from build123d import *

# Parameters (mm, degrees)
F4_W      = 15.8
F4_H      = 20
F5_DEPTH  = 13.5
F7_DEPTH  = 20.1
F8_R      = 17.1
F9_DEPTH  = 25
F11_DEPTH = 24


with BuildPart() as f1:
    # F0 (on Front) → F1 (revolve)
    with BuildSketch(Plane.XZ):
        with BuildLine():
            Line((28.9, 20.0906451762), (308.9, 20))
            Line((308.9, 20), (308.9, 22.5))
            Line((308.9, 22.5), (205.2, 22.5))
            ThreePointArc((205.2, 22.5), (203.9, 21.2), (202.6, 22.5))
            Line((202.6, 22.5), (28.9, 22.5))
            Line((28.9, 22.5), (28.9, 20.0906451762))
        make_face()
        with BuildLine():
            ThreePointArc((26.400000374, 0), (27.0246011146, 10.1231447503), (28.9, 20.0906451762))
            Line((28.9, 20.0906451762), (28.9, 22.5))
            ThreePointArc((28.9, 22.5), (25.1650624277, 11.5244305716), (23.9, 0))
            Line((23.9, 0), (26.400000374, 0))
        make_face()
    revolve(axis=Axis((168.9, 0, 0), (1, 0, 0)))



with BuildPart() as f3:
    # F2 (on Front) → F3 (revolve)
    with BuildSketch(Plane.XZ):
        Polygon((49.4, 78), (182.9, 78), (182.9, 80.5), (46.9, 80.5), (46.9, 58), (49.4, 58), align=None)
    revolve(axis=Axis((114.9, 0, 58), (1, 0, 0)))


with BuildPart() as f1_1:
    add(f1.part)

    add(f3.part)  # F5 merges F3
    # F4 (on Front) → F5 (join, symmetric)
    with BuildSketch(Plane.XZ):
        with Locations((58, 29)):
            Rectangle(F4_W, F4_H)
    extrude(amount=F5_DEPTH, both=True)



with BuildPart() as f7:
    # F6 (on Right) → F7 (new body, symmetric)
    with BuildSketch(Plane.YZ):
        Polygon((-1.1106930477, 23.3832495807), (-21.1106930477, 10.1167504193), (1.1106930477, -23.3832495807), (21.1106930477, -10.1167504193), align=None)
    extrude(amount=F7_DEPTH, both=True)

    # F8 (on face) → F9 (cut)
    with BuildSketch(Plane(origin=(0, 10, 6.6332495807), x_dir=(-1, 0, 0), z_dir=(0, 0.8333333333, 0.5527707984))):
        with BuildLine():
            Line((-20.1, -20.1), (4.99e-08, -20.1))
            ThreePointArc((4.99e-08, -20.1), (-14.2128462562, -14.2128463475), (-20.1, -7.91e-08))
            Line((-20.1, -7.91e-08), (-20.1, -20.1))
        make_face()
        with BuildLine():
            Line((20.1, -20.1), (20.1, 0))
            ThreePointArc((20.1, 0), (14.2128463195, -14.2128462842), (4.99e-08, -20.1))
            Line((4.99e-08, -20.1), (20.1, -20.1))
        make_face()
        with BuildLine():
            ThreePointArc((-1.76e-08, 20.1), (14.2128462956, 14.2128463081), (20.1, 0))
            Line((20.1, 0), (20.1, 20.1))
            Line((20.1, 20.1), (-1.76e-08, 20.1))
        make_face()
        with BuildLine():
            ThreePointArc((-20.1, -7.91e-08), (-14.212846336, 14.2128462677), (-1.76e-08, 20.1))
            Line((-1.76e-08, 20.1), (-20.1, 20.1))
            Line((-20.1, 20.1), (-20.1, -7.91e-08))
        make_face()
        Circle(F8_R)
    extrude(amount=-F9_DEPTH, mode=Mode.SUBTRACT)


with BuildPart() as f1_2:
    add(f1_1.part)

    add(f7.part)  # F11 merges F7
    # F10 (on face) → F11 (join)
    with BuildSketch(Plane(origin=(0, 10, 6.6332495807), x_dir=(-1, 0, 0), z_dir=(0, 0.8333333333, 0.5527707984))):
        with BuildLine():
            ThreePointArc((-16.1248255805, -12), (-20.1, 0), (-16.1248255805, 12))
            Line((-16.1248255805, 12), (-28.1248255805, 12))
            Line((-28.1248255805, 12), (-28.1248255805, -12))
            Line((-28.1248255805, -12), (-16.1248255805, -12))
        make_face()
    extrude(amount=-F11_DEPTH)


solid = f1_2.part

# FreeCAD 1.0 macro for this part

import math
import FreeCAD as App
import Part
import Sketcher

doc = App.newDocument("Part")
body = doc.addObject("PartDesign::Body", "Body")

sketch1 = body.newObject("Sketcher::SketchObject", "Sketch")
sketch1.AttachmentSupport = (doc.getObject("XZ_Plane"), [""])
sketch1.MapMode = "FlatFace"
sketch1.addGeometry([
    Part.LineSegment(App.Vector(28.9, 20.1, 0), App.Vector(308.9, 20, 0)),
    Part.LineSegment(App.Vector(308.9, 20, 0), App.Vector(308.9, 22.5, 0)),
    Part.LineSegment(App.Vector(308.9, 22.5, 0), App.Vector(205.2, 22.5, 0)),
    Part.ArcOfCircle(Part.Circle(App.Vector(203.9, 22.5, 0), App.Vector(0, 0, 1), 1.3), math.radians(180), math.radians(360)),
    Part.LineSegment(App.Vector(202.6, 22.5, 0), App.Vector(28.9, 22.5, 0)),
    Part.ArcOfCircle(Part.Circle(App.Vector(77, 0, 0), App.Vector(0, 0, 1), 53.1), math.radians(155), math.radians(180)),
    Part.LineSegment(App.Vector(23.9, 0, 0), App.Vector(26.4, 0, 0)),
    Part.ArcOfCircle(Part.Circle(App.Vector(108, 0, 0), App.Vector(0, 0, 1), 81.6), math.radians(165.78), math.radians(180.03)),
], False)
sketch1.addConstraint([
    Sketcher.Constraint("Coincident", 0, 2, 1, 1),
    Sketcher.Constraint("Coincident", 1, 2, 2, 1),
    Sketcher.Constraint("Coincident", 2, 2, 3, 2),
    Sketcher.Constraint("Coincident", 3, 1, 4, 1),
    Sketcher.Constraint("Coincident", 4, 2, 5, 1),
    Sketcher.Constraint("Coincident", 5, 2, 6, 1),
    Sketcher.Constraint("Coincident", 6, 2, 7, 2),
    Sketcher.Constraint("Coincident", 7, 1, 0, 1),
    Sketcher.Constraint("Vertical", 1),
    Sketcher.Constraint("Horizontal", 2),
    Sketcher.Constraint("Horizontal", 4),
    Sketcher.Constraint("Horizontal", 6),
    Sketcher.Constraint("PointOnObject", 5, 3, -1),
    Sketcher.Constraint("PointOnObject", 5, 2, -1),
    Sketcher.Constraint("Horizontal", 3, 3, 1, 2),
    Sketcher.Constraint("Horizontal", 2, 2, 3, 1),
    Sketcher.Constraint("Vertical", 4, 2, 7, 1),
    Sketcher.Constraint("Equal", 6, 1),
    Sketcher.Constraint("Radius", 3, 1.3),
    Sketcher.Constraint("DistanceX", 2, 2, 2, 1, 103.7),
    Sketcher.Constraint("DistanceX", 4, 2, 4, 1, 173.7),
    Sketcher.Constraint("DistanceX", 6, 1, 6, 2, 2.5),
    Sketcher.Constraint("DistanceY", -1, 1, 0, 2, 20.0),
    Sketcher.Constraint("Radius", 5, 53.125),
    Sketcher.Constraint("DistanceX", -1, 1, 3, 3, 203.9),
    Sketcher.Constraint("Radius", 7, 81.612605),
    Sketcher.Constraint("DistanceY", -1, 1, 7, 3, 0.045323),
])
revolution = body.newObject("PartDesign::Revolution", "Revolution")
revolution.Profile = sketch1
revolution.ReferenceAxis = (sketch1, ["H_Axis"])
revolution.Angle = 360
body2 = doc.addObject("PartDesign::Body", "Body001")

sketch2 = body2.newObject("Sketcher::SketchObject", "Sketch001")
sketch2.AttachmentSupport = (doc.getObject("XZ_Plane001"), [""])
sketch2.MapMode = "FlatFace"
sketch2.addGeometry([
    Part.LineSegment(App.Vector(49.4, 78, 0), App.Vector(182.9, 78, 0)),
    Part.LineSegment(App.Vector(182.9, 78, 0), App.Vector(182.9, 80.5, 0)),
    Part.LineSegment(App.Vector(182.9, 80.5, 0), App.Vector(46.9, 80.5, 0)),
    Part.LineSegment(App.Vector(46.9, 80.5, 0), App.Vector(46.9, 58, 0)),
    Part.LineSegment(App.Vector(46.9, 58, 0), App.Vector(49.4, 58, 0)),
    Part.LineSegment(App.Vector(49.4, 58, 0), App.Vector(49.4, 78, 0)),
], False)
sketch2.addGeometry(Part.LineSegment(App.Vector(46.9, 58, 0), App.Vector(182.9, 58, 0)), True)
sketch2.addConstraint([
    Sketcher.Constraint("Coincident", 0, 2, 1, 1),
    Sketcher.Constraint("Coincident", 1, 2, 2, 1),
    Sketcher.Constraint("Coincident", 2, 2, 3, 1),
    Sketcher.Constraint("Coincident", 3, 2, 4, 1),
    Sketcher.Constraint("Coincident", 4, 2, 5, 1),
    Sketcher.Constraint("Coincident", 5, 2, 0, 1),
    Sketcher.Constraint("Horizontal", 0),
    Sketcher.Constraint("Vertical", 1),
    Sketcher.Constraint("Horizontal", 2),
    Sketcher.Constraint("Vertical", 3),
    Sketcher.Constraint("Horizontal", 4),
    Sketcher.Constraint("Vertical", 5),
    Sketcher.Constraint("Horizontal", 6),
    Sketcher.Constraint("Coincident", 6, 1, 3, 2),
    Sketcher.Constraint("Vertical", 1, 2, 6, 2),
    Sketcher.Constraint("Equal", 4, 1),
    Sketcher.Constraint("DistanceX", 2, 2, 2, 1, 136.0),
    Sketcher.Constraint("DistanceY", 5, 1, 5, 2, 20.0),
    Sketcher.Constraint("DistanceX", 0, 1, 0, 2, 133.5),
    Sketcher.Constraint("DistanceY", -1, 1, 0, 2, 78.0),
    Sketcher.Constraint("DistanceX", -1, 1, 0, 2, 182.9),
])
revolution2 = body2.newObject("PartDesign::Revolution", "Revolution001")
revolution2.Profile = sketch2
revolution2.ReferenceAxis = (sketch2, ["Axis0"])
revolution2.Angle = 360
body.AllowCompound = True
doc.recompute()

boolean = body.newObject("PartDesign::Boolean", "Boolean")
boolean.Type = "Fuse"
boolean.addObjects([body2])

sketch3 = body.newObject("Sketcher::SketchObject", "Sketch002")
sketch3.AttachmentSupport = (doc.getObject("XZ_Plane"), [""])
sketch3.MapMode = "FlatFace"
sketch3.addGeometry([
    Part.LineSegment(App.Vector(50, 39, 0), App.Vector(50, 19, 0)),
    Part.LineSegment(App.Vector(50, 19, 0), App.Vector(66, 19, 0)),
    Part.LineSegment(App.Vector(66, 19, 0), App.Vector(66, 39, 0)),
    Part.LineSegment(App.Vector(66, 39, 0), App.Vector(50, 39, 0)),
], False)
sketch3.addConstraint([
    Sketcher.Constraint("Coincident", 0, 2, 1, 1),
    Sketcher.Constraint("Coincident", 1, 2, 2, 1),
    Sketcher.Constraint("Coincident", 2, 2, 3, 1),
    Sketcher.Constraint("Coincident", 3, 2, 0, 1),
    Sketcher.Constraint("Vertical", 0),
    Sketcher.Constraint("Horizontal", 1),
    Sketcher.Constraint("Vertical", 2),
    Sketcher.Constraint("Horizontal", 3),
    Sketcher.Constraint("DistanceY", 0, 2, 0, 1, 20.0),
    Sketcher.Constraint("DistanceX", 1, 1, 1, 2, 15.8),
    Sketcher.Constraint("DistanceY", -1, 1, 0, 2, 19.0),
    Sketcher.Constraint("DistanceX", -1, 1, 0, 2, 50.1),
])
pad1 = body.newObject("PartDesign::Pad", "Pad")
pad1.Profile = sketch3
pad1.Length = 27
pad1.Midplane = True
body3 = doc.addObject("PartDesign::Body", "Body002")

sketch4 = body3.newObject("Sketcher::SketchObject", "Sketch003")
sketch4.AttachmentSupport = (doc.getObject("YZ_Plane002"), [""])
sketch4.MapMode = "FlatFace"
sketch4.addGeometry([
    Part.LineSegment(App.Vector(-1, 23, 0), App.Vector(-21, 10, 0)),
    Part.LineSegment(App.Vector(-21, 10, 0), App.Vector(1, -23, 0)),
    Part.LineSegment(App.Vector(1, -23, 0), App.Vector(21, -10, 0)),
    Part.LineSegment(App.Vector(21, -10, 0), App.Vector(-1, 23, 0)),
], False)
sketch4.addConstraint([
    Sketcher.Constraint("Coincident", 0, 2, 1, 1),
    Sketcher.Constraint("Coincident", 1, 2, 2, 1),
    Sketcher.Constraint("Coincident", 2, 2, 3, 1),
    Sketcher.Constraint("Coincident", 3, 2, 0, 1),
    Sketcher.Constraint("Symmetric", 0, 2, 2, 2, -1, 1),
    Sketcher.Constraint("Symmetric", 1, 2, 3, 2, -1, 1),
    Sketcher.Constraint("Perpendicular", 0, 1),
    Sketcher.Constraint("Distance", 0, 24.0),
    Sketcher.Constraint("DistanceX", 1, 2, 2, 2, 20.0),
    Sketcher.Constraint("Distance", 1, 40.2),
])
pad2 = body3.newObject("PartDesign::Pad", "Pad001")
pad2.Profile = sketch4
pad2.Length = 40.2
pad2.Midplane = True

sketch5 = body3.newObject("Sketcher::SketchObject", "Sketch004")
sketch5.Placement = App.Placement(App.Vector(0, 10, 6.63325), App.Rotation(App.Vector(-1, 0, 0), App.Vector(0, -0.552770798, 0.833333333), App.Vector(0, 0.833333333, 0.552770798), "ZXY"))
sketch5.addGeometry([
    Part.LineSegment(App.Vector(-20, -20, 0), App.Vector(0, -20, 0)),
    Part.ArcOfCircle(Part.Circle(App.Vector(0, 0, 0), App.Vector(0, 0, 1), 20), math.radians(-180), math.radians(-90)),
    Part.LineSegment(App.Vector(-20, 0, 0), App.Vector(-20, -20, 0)),
    Part.LineSegment(App.Vector(20, -20, 0), App.Vector(20, 0, 0)),
    Part.ArcOfCircle(Part.Circle(App.Vector(0, 0, 0), App.Vector(0, 0, 1), 20), math.radians(-90), math.radians(0)),
    Part.LineSegment(App.Vector(0, -20, 0), App.Vector(20, -20, 0)),
    Part.ArcOfCircle(Part.Circle(App.Vector(0, 0, 0), App.Vector(0, 0, 1), 20), math.radians(0), math.radians(90)),
    Part.LineSegment(App.Vector(20, 0, 0), App.Vector(20, 20, 0)),
    Part.LineSegment(App.Vector(20, 20, 0), App.Vector(0, 20, 0)),
    Part.ArcOfCircle(Part.Circle(App.Vector(0, 0, 0), App.Vector(0, 0, 1), 20), math.radians(90), math.radians(180)),
    Part.LineSegment(App.Vector(0, 20, 0), App.Vector(-20, 20, 0)),
    Part.LineSegment(App.Vector(-20, 20, 0), App.Vector(-20, 0, 0)),
    Part.Circle(App.Vector(0, 0, 0), App.Vector(0, 0, 1), 17),
], False)
sketch5.addConstraint([
    Sketcher.Constraint("Tangent", 0, 2, 1, 2),
    Sketcher.Constraint("Tangent", 1, 1, 2, 1),
    Sketcher.Constraint("Coincident", 2, 2, 0, 1),
    Sketcher.Constraint("Tangent", 3, 2, 4, 2),
    Sketcher.Constraint("Tangent", 4, 1, 5, 1),
    Sketcher.Constraint("Coincident", 5, 2, 3, 1),
    Sketcher.Constraint("Tangent", 6, 1, 7, 1),
    Sketcher.Constraint("Coincident", 7, 2, 8, 1),
    Sketcher.Constraint("Tangent", 8, 2, 6, 2),
    Sketcher.Constraint("Tangent", 9, 1, 10, 1),
    Sketcher.Constraint("Coincident", 10, 2, 11, 1),
    Sketcher.Constraint("Tangent", 11, 2, 9, 2),
    Sketcher.Constraint("Horizontal", 0),
    Sketcher.Constraint("Vertical", 2),
    Sketcher.Constraint("Vertical", 3),
    Sketcher.Constraint("Horizontal", 5),
    Sketcher.Constraint("Vertical", 7),
    Sketcher.Constraint("Horizontal", 8),
    Sketcher.Constraint("Horizontal", 10),
    Sketcher.Constraint("Vertical", 11),
    Sketcher.Constraint("Coincident", 1, 3, -1, 1),
    Sketcher.Constraint("Coincident", 4, 3, -1, 1),
    Sketcher.Constraint("Coincident", 6, 3, -1, 1),
    Sketcher.Constraint("Coincident", 9, 3, -1, 1),
    Sketcher.Constraint("Coincident", 12, 3, -1, 1),
    Sketcher.Constraint("Equal", 1, 4),
    Sketcher.Constraint("Equal", 4, 6),
    Sketcher.Constraint("Equal", 6, 9),
    Sketcher.Constraint("Diameter", 12, 34.2),
    Sketcher.Constraint("Radius", 1, 20.1),
])
pocket1 = body3.newObject("PartDesign::Pocket", "Pocket")
pocket1.Profile = sketch5
pocket1.Length = 25
body.AllowCompound = True
doc.recompute()

boolean2 = body.newObject("PartDesign::Boolean", "Boolean001")
boolean2.Type = "Fuse"
boolean2.addObjects([body3])

sketch6 = body.newObject("Sketcher::SketchObject", "Sketch005")
sketch6.Placement = App.Placement(App.Vector(0, 10, 6.63325), App.Rotation(App.Vector(-1, 0, 0), App.Vector(0, -0.552770798, 0.833333333), App.Vector(0, 0.833333333, 0.552770798), "ZXY"))
sketch6.addGeometry([
    Part.ArcOfCircle(Part.Circle(App.Vector(0, 0, 0), App.Vector(0, 0, 1), 20), math.radians(143), math.radians(217)),
    Part.LineSegment(App.Vector(-16, 12, 0), App.Vector(-28, 12, 0)),
    Part.LineSegment(App.Vector(-28, 12, 0), App.Vector(-28, -12, 0)),
    Part.LineSegment(App.Vector(-28, -12, 0), App.Vector(-16, -12, 0)),
], False)
sketch6.addConstraint([
    Sketcher.Constraint("Coincident", 0, 1, 1, 1),
    Sketcher.Constraint("Coincident", 1, 2, 2, 1),
    Sketcher.Constraint("Coincident", 2, 2, 3, 1),
    Sketcher.Constraint("Coincident", 3, 2, 0, 2),
    Sketcher.Constraint("Horizontal", 1),
    Sketcher.Constraint("Vertical", 2),
    Sketcher.Constraint("Horizontal", 3),
    Sketcher.Constraint("Coincident", 0, 3, -1, 1),
    Sketcher.Constraint("Vertical", 0, 1, 3, 2),
    Sketcher.Constraint("Radius", 0, 20.1),
    Sketcher.Constraint("DistanceX", 1, 2, 1, 1, 12.0),
    Sketcher.Constraint("DistanceY", 2, 2, 2, 1, 24.0),
])
pad3 = body.newObject("PartDesign::Pad", "Pad002")
pad3.Profile = sketch6
pad3.Length = 24
pad3.Reversed = True

doc.recompute()
